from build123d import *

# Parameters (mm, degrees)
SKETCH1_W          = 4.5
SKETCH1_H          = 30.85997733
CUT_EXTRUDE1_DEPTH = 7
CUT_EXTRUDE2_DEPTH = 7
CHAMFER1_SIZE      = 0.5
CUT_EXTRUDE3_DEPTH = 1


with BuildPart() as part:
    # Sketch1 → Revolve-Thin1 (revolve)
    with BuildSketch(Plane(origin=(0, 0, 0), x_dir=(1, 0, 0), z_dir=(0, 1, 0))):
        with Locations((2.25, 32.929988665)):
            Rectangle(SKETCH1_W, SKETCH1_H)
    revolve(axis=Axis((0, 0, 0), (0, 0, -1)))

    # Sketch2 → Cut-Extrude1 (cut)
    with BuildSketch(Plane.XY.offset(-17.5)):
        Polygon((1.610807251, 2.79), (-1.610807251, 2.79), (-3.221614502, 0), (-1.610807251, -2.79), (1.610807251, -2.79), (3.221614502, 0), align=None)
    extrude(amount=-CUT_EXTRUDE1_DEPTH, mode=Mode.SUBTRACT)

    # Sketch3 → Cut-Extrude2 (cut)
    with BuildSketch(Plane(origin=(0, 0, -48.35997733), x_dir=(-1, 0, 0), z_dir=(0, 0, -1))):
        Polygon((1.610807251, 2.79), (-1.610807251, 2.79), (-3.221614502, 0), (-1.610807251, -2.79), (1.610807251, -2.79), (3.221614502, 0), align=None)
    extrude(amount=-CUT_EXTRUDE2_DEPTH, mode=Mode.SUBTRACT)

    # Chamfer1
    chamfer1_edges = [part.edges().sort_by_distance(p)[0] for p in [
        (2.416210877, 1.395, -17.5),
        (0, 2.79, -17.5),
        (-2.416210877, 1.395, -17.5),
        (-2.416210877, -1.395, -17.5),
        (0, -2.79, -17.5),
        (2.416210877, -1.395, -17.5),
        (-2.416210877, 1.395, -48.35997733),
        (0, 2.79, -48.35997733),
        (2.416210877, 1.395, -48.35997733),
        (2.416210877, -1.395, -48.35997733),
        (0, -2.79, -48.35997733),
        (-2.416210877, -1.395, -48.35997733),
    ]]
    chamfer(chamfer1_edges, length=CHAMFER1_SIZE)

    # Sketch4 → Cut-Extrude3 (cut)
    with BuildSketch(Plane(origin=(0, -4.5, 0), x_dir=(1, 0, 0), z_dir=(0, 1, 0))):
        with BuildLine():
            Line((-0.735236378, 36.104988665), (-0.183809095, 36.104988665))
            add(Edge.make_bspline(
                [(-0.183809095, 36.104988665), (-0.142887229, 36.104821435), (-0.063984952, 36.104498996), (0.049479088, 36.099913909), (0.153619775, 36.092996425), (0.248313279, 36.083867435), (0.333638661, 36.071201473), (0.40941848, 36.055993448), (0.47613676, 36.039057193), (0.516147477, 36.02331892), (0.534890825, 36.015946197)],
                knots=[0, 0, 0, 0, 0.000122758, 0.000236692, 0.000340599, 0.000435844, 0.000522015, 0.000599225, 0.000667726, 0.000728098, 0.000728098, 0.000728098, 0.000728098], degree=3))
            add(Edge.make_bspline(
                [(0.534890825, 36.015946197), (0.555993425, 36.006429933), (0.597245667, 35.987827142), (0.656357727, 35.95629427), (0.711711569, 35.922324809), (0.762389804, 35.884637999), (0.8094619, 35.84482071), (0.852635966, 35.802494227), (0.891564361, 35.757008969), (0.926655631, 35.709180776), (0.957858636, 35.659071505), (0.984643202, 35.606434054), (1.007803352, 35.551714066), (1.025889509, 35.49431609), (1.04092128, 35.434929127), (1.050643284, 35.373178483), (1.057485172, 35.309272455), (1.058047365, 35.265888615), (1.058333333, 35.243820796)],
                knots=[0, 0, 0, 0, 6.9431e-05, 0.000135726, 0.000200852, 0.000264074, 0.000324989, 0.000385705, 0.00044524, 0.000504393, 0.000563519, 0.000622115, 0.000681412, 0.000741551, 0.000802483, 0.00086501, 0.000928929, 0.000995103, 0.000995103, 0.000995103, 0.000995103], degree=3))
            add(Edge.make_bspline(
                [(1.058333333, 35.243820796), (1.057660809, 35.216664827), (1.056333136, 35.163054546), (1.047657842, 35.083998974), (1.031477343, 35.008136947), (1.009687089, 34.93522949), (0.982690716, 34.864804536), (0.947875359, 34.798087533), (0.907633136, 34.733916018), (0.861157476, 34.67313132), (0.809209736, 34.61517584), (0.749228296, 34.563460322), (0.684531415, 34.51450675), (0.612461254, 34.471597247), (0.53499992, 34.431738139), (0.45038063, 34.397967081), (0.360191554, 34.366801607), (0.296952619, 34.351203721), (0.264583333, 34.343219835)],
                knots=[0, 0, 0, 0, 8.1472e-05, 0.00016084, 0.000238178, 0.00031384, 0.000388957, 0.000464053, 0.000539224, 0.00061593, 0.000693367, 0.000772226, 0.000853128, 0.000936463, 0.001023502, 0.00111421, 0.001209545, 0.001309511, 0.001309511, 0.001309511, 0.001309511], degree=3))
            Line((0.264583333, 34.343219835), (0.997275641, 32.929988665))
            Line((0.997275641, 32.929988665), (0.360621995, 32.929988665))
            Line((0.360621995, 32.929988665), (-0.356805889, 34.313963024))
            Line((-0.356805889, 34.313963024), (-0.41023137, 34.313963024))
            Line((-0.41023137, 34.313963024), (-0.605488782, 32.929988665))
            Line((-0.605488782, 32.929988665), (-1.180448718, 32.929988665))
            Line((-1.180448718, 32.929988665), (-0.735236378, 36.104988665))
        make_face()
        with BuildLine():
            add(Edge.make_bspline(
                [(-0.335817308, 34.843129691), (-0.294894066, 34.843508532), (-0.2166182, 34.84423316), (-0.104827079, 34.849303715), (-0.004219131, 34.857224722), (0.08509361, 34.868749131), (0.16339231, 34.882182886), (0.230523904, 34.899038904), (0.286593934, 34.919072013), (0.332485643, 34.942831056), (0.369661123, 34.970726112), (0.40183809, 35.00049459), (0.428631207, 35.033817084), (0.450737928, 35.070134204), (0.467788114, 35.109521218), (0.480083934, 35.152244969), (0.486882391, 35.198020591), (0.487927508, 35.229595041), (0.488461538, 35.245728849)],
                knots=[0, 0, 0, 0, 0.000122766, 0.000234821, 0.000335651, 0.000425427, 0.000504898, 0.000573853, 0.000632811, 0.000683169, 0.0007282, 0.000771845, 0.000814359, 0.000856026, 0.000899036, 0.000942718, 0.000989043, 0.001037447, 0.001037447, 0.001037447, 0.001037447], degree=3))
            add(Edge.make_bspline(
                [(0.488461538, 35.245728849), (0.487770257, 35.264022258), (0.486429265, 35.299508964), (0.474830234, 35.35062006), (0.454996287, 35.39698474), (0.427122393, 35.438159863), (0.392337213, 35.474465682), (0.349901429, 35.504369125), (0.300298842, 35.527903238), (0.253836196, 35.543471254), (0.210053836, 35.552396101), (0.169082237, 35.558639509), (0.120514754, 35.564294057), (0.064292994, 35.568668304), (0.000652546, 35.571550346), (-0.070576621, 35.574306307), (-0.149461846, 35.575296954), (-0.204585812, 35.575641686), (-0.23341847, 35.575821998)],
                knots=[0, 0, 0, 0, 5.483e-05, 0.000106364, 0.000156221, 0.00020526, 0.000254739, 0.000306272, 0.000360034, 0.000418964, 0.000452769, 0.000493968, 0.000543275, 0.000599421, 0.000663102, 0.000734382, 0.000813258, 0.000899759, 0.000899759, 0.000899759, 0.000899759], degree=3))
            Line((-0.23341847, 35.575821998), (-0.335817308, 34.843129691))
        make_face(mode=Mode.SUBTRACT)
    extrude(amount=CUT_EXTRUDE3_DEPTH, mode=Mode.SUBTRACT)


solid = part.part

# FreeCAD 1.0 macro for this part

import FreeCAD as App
import Part
import Sketcher

V = App.Vector
Q = App.Units.Quantity


def edges_at(feature, points):
    """Names of the edges that pass closest to the given points."""
    edges = feature.Shape.Edges
    near = lambda p: min(range(len(edges)), key=lambda i: edges[i].distToShape(Part.Vertex(*p))[0])
    return sorted({f"Edge{near(p) + 1}" for p in points})


def add_polygon(sketch, points):
    """Adds a closed chain of lines whose ends are joined by coincident constraints."""
    first, n = sketch.GeometryCount, len(points)
    for a, b in zip(points, points[1:] + points[:1]):
        sketch.addGeometry(Part.LineSegment(App.Vector(*a, 0), App.Vector(*b, 0)), False)
    for i in range(n):
        sketch.addConstraint(Sketcher.Constraint("Coincident", first + i, 2, first + (i + 1) % n, 1))

doc = App.newDocument("Part")
params = doc.addObject("Spreadsheet::Sheet", "Params")
for row, (alias, value) in enumerate([
    ("sketch1_width", "4.5 mm"),
    ("revolution_angle", "360 deg"),
    ("pocket1_length", "7 mm"),
    ("pocket2_length", "7 mm"),
    ("chamfer_size", "0.5 mm"),
    ("pocket3_length", "1 mm"),
], start=1):
    params.set(f"A{row}", alias)
    params.set(f"B{row}", "=" + value)
    params.setAlias(f"B{row}", alias)

body = doc.addObject("PartDesign::Body", "Body")

# Sketch on XZ plane
sketch1 = body.newObject("Sketcher::SketchObject", "Sketch")
sketch1.AttachmentSupport = (doc.getObject("XZ_Plane"), [""])
sketch1.MapMode = "FlatFace"
add_polygon(sketch1, [(0, -48.4), (0, -17.5), (4.5, -17.5), (4.5, -48.4)])  # lines 0-3
sketch1.addConstraint([
    Sketcher.Constraint("Vertical", 0),
    Sketcher.Constraint("Horizontal", 1),
    Sketcher.Constraint("Vertical", 2),
    Sketcher.Constraint("Horizontal", 3),
    Sketcher.Constraint("PointOnObject", 0, 2, -2),
    Sketcher.Constraint("DistanceX", 1, 1, 1, 2, 4.5),
    Sketcher.Constraint("DistanceY", 0, 2, -1, 1, 17.5),
    Sketcher.Constraint("DistanceY", 0, 1, 0, 2, 30.859977),
])
sketch1.setExpression("Constraints[9]", "Params.sketch1_width")
revolution = body.newObject("PartDesign::Revolution", "Revolution")
revolution.Profile = sketch1
revolution.ReferenceAxis = (sketch1, ["V_Axis"])
revolution.setExpression("Angle", "Params.revolution_angle")

# Sketch on XY plane
sketch2 = body.newObject("Sketcher::SketchObject", "Sketch001")
sketch2.AttachmentSupport = (doc.getObject("XY_Plane"), [""])
sketch2.MapMode = "FlatFace"
sketch2.AttachmentOffset = App.Placement(V(0, 0, -17.5), App.Rotation())
add_polygon(sketch2, [(1.6, 2.8), (-1.6, 2.8), (-3.2, 0), (-1.6, -2.8), (1.6, -2.8), (3.2, 0)])  # lines 0-5
sketch2.addConstraint([
    Sketcher.Constraint("Horizontal", 0),
    Sketcher.Constraint("Horizontal", 3),
    Sketcher.Constraint("Symmetric", 0, 2, 3, 2, -1, 1),
    Sketcher.Constraint("Symmetric", 1, 2, 4, 2, -1, 1),
    Sketcher.Constraint("PointOnObject", 1, 2, -1),
    Sketcher.Constraint("Parallel", 2, 5),
    Sketcher.Constraint("Vertical", 0, 2, 2, 2),
    Sketcher.Constraint("Angle", 1, Q("-120 deg")),
    Sketcher.Constraint("DistanceY", -1, 1, 0, 2, 2.79),
    Sketcher.Constraint("DistanceX", 0, 2, 0, 1, 3.221615),
])
pocket1 = body.newObject("PartDesign::Pocket", "Pocket")
pocket1.Profile = sketch2
pocket1.setExpression("Length", "Params.pocket1_length")

# Sketch on XY plane
sketch3 = body.newObject("Sketcher::SketchObject", "Sketch002")
sketch3.AttachmentSupport = (doc.getObject("XY_Plane"), [""])
sketch3.MapMode = "FlatFace"
sketch3.AttachmentOffset = App.Placement(V(0, 0, -48.359977), App.Rotation())
add_polygon(sketch3, [(-1.6, 2.8), (1.6, 2.8), (3.2, 0), (1.6, -2.8), (-1.6, -2.8), (-3.2, 0)])  # lines 0-5
sketch3.addConstraint([
    Sketcher.Constraint("Horizontal", 0),
    Sketcher.Constraint("Horizontal", 3),
    Sketcher.Constraint("Symmetric", 0, 2, 3, 2, -1, 1),
    Sketcher.Constraint("Symmetric", 1, 2, 4, 2, -1, 1),
    Sketcher.Constraint("PointOnObject", 1, 2, -1),
    Sketcher.Constraint("Parallel", 2, 5),
    Sketcher.Constraint("Vertical", 0, 2, 2, 2),
    Sketcher.Constraint("Angle", 1, Q("-60 deg")),
    Sketcher.Constraint("DistanceY", -1, 1, 0, 2, 2.79),
    Sketcher.Constraint("DistanceX", 0, 1, 0, 2, 3.221615),
])
pocket2 = body.newObject("PartDesign::Pocket", "Pocket001")
pocket2.Profile = sketch3
pocket2.setExpression("Length", "Params.pocket2_length")
pocket2.Reversed = True
doc.recompute()

chamfer = body.newObject("PartDesign::Chamfer", "Chamfer")
chamfer.Base = (pocket2, edges_at(pocket2, [
    (2.416, 1.395, -17.5),
    (0, 2.79, -17.5),
    (-2.416, 1.395, -17.5),
    (-2.416, -1.395, -17.5),
    (0, -2.79, -17.5),
    (2.416, -1.395, -17.5),
    (-2.416, 1.395, -48.36),
    (0, 2.79, -48.36),
    (2.416, 1.395, -48.36),
    (2.416, -1.395, -48.36),
    (0, -2.79, -48.36),
    (-2.416, -1.395, -48.36),
]))
chamfer.setExpression("Size", "Params.chamfer_size")

# Sketch on XZ plane
sketch4 = body.newObject("Sketcher::SketchObject", "Sketch003")
sketch4.AttachmentSupport = (doc.getObject("XZ_Plane"), [""])
sketch4.MapMode = "FlatFace"
sketch4.AttachmentOffset = App.Placement(V(0, 0, 4.5), App.Rotation())
sketch4.addGeometry([
    Part.LineSegment(V(-0.183809, -36.104989, 0), V(-0.735236, -36.104989, 0)),  # 0
    Part.LineSegment(V(-0.735236, -36.104989, 0), V(-1.180449, -32.929989, 0)),  # 1
    Part.LineSegment(V(-1.180449, -32.929989, 0), V(-0.605489, -32.929989, 0)),  # 2
    Part.LineSegment(V(-0.605489, -32.929989, 0), V(-0.410231, -34.313963, 0)),  # 3
    Part.LineSegment(V(-0.410231, -34.313963, 0), V(-0.356806, -34.313963, 0)),  # 4
    Part.LineSegment(V(-0.356806, -34.313963, 0), V(0.360622, -32.929989, 0)),  # 5
    Part.LineSegment(V(0.360622, -32.929989, 0), V(0.997276, -32.929989, 0)),  # 6
    Part.LineSegment(V(0.997276, -32.929989, 0), V(0.264583, -34.34322, 0)),  # 7
    Part.BSplineCurve([V(1.058333, -35.243821, 0), V(1.057661, -35.216665, 0), V(1.056333, -35.163055, 0), V(1.047658, -35.083999, 0), V(1.031477, -35.008137, 0), V(1.009687, -34.935229, 0), V(0.982691, -34.864805, 0), V(0.947875, -34.798088, 0), V(0.907633, -34.733916, 0), V(0.861157, -34.673131, 0), V(0.80921, -34.615176, 0), V(0.749228, -34.56346, 0), V(0.684531, -34.514507, 0), V(0.612461, -34.471597, 0), V(0.535, -34.431738, 0), V(0.450381, -34.397967, 0), V(0.360192, -34.366802, 0), V(0.296953, -34.351204, 0), V(0.264583, -34.34322, 0)], [4, 1, 1, 1, 1, 1, 1, 1, 1, 1, 1, 1, 1, 1, 1, 1, 4], [0, 0.000081472, 0.00016084, 0.000238178, 0.00031384, 0.000388957, 0.000464053, 0.000539224, 0.00061593, 0.000693367, 0.000772226, 0.000853128, 0.000936463, 0.001023502, 0.00111421, 0.001209545, 0.001309511], False, 3, [1, 1, 1, 1, 1, 1, 1, 1, 1, 1, 1, 1, 1, 1, 1, 1, 1, 1, 1], False),  # 8
    Part.BSplineCurve([V(0.534891, -36.015946, 0), V(0.555993, -36.00643, 0), V(0.597246, -35.987827, 0), V(0.656358, -35.956294, 0), V(0.711712, -35.922325, 0), V(0.76239, -35.884638, 0), V(0.809462, -35.844821, 0), V(0.852636, -35.802494, 0), V(0.891564, -35.757009, 0), V(0.926656, -35.709181, 0), V(0.957859, -35.659072, 0), V(0.984643, -35.606434, 0), V(1.007803, -35.551714, 0), V(1.02589, -35.494316, 0), V(1.040921, -35.434929, 0), V(1.050643, -35.373178, 0), V(1.057485, -35.309272, 0), V(1.058047, -35.265889, 0), V(1.058333, -35.243821, 0)], [4, 1, 1, 1, 1, 1, 1, 1, 1, 1, 1, 1, 1, 1, 1, 1, 4], [0, 0.000069431, 0.000135726, 0.000200852, 0.000264074, 0.000324989, 0.000385705, 0.00044524, 0.000504393, 0.000563519, 0.000622115, 0.000681412, 0.000741551, 0.000802483, 0.00086501, 0.000928929, 0.000995103], False, 3, [1, 1, 1, 1, 1, 1, 1, 1, 1, 1, 1, 1, 1, 1, 1, 1, 1, 1, 1], False),  # 9
    Part.BSplineCurve([V(-0.183809, -36.104989, 0), V(-0.142887, -36.104821, 0), V(-0.063985, -36.104499, 0), V(0.049479, -36.099914, 0), V(0.15362, -36.092996, 0), V(0.248313, -36.083867, 0), V(0.333639, -36.071201, 0), V(0.409418, -36.055993, 0), V(0.476137, -36.039057, 0), V(0.516147, -36.023319, 0), V(0.534891, -36.015946, 0)], [4, 1, 1, 1, 1, 1, 1, 1, 4], [0, 0.000122758, 0.000236692, 0.000340599, 0.000435844, 0.000522015, 0.000599225, 0.000667726, 0.000728098], False, 3, [1, 1, 1, 1, 1, 1, 1, 1, 1, 1, 1], False),  # 10
    Part.LineSegment(V(-0.335817, -34.84313, 0), V(-0.233418, -35.575822, 0)),  # 11
    Part.BSplineCurve([V(0.488462, -35.245729, 0), V(0.48777, -35.264022, 0), V(0.486429, -35.299509, 0), V(0.47483, -35.35062, 0), V(0.454996, -35.396985, 0), V(0.427122, -35.43816, 0), V(0.392337, -35.474466, 0), V(0.349901, -35.504369, 0), V(0.300299, -35.527903, 0), V(0.253836, -35.543471, 0), V(0.210054, -35.552396, 0), V(0.169082, -35.55864, 0), V(0.120515, -35.564294, 0), V(0.064293, -35.568668, 0), V(0.000653, -35.57155, 0), V(-0.070577, -35.574306, 0), V(-0.149462, -35.575297, 0), V(-0.204586, -35.575642, 0), V(-0.233418, -35.575822, 0)], [4, 1, 1, 1, 1, 1, 1, 1, 1, 1, 1, 1, 1, 1, 1, 1, 4], [0, 0.00005483, 0.000106364, 0.000156221, 0.00020526, 0.000254739, 0.000306272, 0.000360034, 0.000418964, 0.000452769, 0.000493968, 0.000543275, 0.000599421, 0.000663102, 0.000734382, 0.000813258, 0.000899759], False, 3, [1, 1, 1, 1, 1, 1, 1, 1, 1, 1, 1, 1, 1, 1, 1, 1, 1, 1, 1], False),  # 12
    Part.BSplineCurve([V(-0.335817, -34.84313, 0), V(-0.294894, -34.843509, 0), V(-0.216618, -34.844233, 0), V(-0.104827, -34.849304, 0), V(-0.004219, -34.857225, 0), V(0.085094, -34.868749, 0), V(0.163392, -34.882183, 0), V(0.230524, -34.899039, 0), V(0.286594, -34.919072, 0), V(0.332486, -34.942831, 0), V(0.369661, -34.970726, 0), V(0.401838, -35.000495, 0), V(0.428631, -35.033817, 0), V(0.450738, -35.070134, 0), V(0.467788, -35.109521, 0), V(0.480084, -35.152245, 0), V(0.486882, -35.198021, 0), V(0.487928, -35.229595, 0), V(0.488462, -35.245729, 0)], [4, 1, 1, 1, 1, 1, 1, 1, 1, 1, 1, 1, 1, 1, 1, 1, 4], [0, 0.000122766, 0.000234821, 0.000335651, 0.000425427, 0.000504898, 0.000573853, 0.000632811, 0.000683169, 0.0007282, 0.000771845, 0.000814359, 0.000856026, 0.000899036, 0.000942718, 0.000989043, 0.001037447], False, 3, [1, 1, 1, 1, 1, 1, 1, 1, 1, 1, 1, 1, 1, 1, 1, 1, 1, 1, 1], False),  # 13
], False)
sketch4.addConstraint([
    Sketcher.Constraint("Block", 8),
    Sketcher.Constraint("Block", 9),
    Sketcher.Constraint("Block", 10),
    Sketcher.Constraint("Block", 12),
    Sketcher.Constraint("Block", 13),
    Sketcher.Constraint("Coincident", 0, 2, 1, 1),
    Sketcher.Constraint("Coincident", 1, 2, 2, 1),
    Sketcher.Constraint("Coincident", 2, 2, 3, 1),
    Sketcher.Constraint("Coincident", 3, 2, 4, 1),
    Sketcher.Constraint("Coincident", 4, 2, 5, 1),
    Sketcher.Constraint("Coincident", 5, 2, 6, 1),
    Sketcher.Constraint("Coincident", 6, 2, 7, 1),
    Sketcher.Constraint("Coincident", 7, 2, 8, 2),
    Sketcher.Constraint("Coincident", 10, 1, 0, 1),
    Sketcher.Constraint("Coincident", 11, 2, 12, 2),
    Sketcher.Constraint("Coincident", 13, 1, 11, 1),
    Sketcher.Constraint("Horizontal", 0),
    Sketcher.Constraint("Horizontal", 2),
    Sketcher.Constraint("Horizontal", 4),
    Sketcher.Constraint("Horizontal", 6),
    Sketcher.Constraint("Horizontal", 2, 2, 5, 2),
    Sketcher.Constraint("DistanceY", 0, 2, 1, 2, 3.175),
    Sketcher.Constraint("DistanceX", 2, 1, 2, 2, 0.57496),
    Sketcher.Constraint("Distance", 3, 1.39768),
    Sketcher.Constraint("DistanceX", 0, 2, 0, 1, 0.551427),
    Sketcher.Constraint("DistanceX", 4, 1, 4, 2, 0.053425),
    Sketcher.Constraint("DistanceX", 6, 1, 6, 2, 0.636654),
    Sketcher.Constraint("DistanceX", 1, 2, -1, 1, 1.180449),
    Sketcher.Constraint("DistanceX", 3, 2, -1, 1, 0.410231),
    Sketcher.Constraint("DistanceX", -1, 1, 5, 2, 0.360622),
])
pocket3 = body.newObject("PartDesign::Pocket", "Pocket002")
pocket3.Profile = sketch4
pocket3.setExpression("Length", "Params.pocket3_length")

doc.recompute()
